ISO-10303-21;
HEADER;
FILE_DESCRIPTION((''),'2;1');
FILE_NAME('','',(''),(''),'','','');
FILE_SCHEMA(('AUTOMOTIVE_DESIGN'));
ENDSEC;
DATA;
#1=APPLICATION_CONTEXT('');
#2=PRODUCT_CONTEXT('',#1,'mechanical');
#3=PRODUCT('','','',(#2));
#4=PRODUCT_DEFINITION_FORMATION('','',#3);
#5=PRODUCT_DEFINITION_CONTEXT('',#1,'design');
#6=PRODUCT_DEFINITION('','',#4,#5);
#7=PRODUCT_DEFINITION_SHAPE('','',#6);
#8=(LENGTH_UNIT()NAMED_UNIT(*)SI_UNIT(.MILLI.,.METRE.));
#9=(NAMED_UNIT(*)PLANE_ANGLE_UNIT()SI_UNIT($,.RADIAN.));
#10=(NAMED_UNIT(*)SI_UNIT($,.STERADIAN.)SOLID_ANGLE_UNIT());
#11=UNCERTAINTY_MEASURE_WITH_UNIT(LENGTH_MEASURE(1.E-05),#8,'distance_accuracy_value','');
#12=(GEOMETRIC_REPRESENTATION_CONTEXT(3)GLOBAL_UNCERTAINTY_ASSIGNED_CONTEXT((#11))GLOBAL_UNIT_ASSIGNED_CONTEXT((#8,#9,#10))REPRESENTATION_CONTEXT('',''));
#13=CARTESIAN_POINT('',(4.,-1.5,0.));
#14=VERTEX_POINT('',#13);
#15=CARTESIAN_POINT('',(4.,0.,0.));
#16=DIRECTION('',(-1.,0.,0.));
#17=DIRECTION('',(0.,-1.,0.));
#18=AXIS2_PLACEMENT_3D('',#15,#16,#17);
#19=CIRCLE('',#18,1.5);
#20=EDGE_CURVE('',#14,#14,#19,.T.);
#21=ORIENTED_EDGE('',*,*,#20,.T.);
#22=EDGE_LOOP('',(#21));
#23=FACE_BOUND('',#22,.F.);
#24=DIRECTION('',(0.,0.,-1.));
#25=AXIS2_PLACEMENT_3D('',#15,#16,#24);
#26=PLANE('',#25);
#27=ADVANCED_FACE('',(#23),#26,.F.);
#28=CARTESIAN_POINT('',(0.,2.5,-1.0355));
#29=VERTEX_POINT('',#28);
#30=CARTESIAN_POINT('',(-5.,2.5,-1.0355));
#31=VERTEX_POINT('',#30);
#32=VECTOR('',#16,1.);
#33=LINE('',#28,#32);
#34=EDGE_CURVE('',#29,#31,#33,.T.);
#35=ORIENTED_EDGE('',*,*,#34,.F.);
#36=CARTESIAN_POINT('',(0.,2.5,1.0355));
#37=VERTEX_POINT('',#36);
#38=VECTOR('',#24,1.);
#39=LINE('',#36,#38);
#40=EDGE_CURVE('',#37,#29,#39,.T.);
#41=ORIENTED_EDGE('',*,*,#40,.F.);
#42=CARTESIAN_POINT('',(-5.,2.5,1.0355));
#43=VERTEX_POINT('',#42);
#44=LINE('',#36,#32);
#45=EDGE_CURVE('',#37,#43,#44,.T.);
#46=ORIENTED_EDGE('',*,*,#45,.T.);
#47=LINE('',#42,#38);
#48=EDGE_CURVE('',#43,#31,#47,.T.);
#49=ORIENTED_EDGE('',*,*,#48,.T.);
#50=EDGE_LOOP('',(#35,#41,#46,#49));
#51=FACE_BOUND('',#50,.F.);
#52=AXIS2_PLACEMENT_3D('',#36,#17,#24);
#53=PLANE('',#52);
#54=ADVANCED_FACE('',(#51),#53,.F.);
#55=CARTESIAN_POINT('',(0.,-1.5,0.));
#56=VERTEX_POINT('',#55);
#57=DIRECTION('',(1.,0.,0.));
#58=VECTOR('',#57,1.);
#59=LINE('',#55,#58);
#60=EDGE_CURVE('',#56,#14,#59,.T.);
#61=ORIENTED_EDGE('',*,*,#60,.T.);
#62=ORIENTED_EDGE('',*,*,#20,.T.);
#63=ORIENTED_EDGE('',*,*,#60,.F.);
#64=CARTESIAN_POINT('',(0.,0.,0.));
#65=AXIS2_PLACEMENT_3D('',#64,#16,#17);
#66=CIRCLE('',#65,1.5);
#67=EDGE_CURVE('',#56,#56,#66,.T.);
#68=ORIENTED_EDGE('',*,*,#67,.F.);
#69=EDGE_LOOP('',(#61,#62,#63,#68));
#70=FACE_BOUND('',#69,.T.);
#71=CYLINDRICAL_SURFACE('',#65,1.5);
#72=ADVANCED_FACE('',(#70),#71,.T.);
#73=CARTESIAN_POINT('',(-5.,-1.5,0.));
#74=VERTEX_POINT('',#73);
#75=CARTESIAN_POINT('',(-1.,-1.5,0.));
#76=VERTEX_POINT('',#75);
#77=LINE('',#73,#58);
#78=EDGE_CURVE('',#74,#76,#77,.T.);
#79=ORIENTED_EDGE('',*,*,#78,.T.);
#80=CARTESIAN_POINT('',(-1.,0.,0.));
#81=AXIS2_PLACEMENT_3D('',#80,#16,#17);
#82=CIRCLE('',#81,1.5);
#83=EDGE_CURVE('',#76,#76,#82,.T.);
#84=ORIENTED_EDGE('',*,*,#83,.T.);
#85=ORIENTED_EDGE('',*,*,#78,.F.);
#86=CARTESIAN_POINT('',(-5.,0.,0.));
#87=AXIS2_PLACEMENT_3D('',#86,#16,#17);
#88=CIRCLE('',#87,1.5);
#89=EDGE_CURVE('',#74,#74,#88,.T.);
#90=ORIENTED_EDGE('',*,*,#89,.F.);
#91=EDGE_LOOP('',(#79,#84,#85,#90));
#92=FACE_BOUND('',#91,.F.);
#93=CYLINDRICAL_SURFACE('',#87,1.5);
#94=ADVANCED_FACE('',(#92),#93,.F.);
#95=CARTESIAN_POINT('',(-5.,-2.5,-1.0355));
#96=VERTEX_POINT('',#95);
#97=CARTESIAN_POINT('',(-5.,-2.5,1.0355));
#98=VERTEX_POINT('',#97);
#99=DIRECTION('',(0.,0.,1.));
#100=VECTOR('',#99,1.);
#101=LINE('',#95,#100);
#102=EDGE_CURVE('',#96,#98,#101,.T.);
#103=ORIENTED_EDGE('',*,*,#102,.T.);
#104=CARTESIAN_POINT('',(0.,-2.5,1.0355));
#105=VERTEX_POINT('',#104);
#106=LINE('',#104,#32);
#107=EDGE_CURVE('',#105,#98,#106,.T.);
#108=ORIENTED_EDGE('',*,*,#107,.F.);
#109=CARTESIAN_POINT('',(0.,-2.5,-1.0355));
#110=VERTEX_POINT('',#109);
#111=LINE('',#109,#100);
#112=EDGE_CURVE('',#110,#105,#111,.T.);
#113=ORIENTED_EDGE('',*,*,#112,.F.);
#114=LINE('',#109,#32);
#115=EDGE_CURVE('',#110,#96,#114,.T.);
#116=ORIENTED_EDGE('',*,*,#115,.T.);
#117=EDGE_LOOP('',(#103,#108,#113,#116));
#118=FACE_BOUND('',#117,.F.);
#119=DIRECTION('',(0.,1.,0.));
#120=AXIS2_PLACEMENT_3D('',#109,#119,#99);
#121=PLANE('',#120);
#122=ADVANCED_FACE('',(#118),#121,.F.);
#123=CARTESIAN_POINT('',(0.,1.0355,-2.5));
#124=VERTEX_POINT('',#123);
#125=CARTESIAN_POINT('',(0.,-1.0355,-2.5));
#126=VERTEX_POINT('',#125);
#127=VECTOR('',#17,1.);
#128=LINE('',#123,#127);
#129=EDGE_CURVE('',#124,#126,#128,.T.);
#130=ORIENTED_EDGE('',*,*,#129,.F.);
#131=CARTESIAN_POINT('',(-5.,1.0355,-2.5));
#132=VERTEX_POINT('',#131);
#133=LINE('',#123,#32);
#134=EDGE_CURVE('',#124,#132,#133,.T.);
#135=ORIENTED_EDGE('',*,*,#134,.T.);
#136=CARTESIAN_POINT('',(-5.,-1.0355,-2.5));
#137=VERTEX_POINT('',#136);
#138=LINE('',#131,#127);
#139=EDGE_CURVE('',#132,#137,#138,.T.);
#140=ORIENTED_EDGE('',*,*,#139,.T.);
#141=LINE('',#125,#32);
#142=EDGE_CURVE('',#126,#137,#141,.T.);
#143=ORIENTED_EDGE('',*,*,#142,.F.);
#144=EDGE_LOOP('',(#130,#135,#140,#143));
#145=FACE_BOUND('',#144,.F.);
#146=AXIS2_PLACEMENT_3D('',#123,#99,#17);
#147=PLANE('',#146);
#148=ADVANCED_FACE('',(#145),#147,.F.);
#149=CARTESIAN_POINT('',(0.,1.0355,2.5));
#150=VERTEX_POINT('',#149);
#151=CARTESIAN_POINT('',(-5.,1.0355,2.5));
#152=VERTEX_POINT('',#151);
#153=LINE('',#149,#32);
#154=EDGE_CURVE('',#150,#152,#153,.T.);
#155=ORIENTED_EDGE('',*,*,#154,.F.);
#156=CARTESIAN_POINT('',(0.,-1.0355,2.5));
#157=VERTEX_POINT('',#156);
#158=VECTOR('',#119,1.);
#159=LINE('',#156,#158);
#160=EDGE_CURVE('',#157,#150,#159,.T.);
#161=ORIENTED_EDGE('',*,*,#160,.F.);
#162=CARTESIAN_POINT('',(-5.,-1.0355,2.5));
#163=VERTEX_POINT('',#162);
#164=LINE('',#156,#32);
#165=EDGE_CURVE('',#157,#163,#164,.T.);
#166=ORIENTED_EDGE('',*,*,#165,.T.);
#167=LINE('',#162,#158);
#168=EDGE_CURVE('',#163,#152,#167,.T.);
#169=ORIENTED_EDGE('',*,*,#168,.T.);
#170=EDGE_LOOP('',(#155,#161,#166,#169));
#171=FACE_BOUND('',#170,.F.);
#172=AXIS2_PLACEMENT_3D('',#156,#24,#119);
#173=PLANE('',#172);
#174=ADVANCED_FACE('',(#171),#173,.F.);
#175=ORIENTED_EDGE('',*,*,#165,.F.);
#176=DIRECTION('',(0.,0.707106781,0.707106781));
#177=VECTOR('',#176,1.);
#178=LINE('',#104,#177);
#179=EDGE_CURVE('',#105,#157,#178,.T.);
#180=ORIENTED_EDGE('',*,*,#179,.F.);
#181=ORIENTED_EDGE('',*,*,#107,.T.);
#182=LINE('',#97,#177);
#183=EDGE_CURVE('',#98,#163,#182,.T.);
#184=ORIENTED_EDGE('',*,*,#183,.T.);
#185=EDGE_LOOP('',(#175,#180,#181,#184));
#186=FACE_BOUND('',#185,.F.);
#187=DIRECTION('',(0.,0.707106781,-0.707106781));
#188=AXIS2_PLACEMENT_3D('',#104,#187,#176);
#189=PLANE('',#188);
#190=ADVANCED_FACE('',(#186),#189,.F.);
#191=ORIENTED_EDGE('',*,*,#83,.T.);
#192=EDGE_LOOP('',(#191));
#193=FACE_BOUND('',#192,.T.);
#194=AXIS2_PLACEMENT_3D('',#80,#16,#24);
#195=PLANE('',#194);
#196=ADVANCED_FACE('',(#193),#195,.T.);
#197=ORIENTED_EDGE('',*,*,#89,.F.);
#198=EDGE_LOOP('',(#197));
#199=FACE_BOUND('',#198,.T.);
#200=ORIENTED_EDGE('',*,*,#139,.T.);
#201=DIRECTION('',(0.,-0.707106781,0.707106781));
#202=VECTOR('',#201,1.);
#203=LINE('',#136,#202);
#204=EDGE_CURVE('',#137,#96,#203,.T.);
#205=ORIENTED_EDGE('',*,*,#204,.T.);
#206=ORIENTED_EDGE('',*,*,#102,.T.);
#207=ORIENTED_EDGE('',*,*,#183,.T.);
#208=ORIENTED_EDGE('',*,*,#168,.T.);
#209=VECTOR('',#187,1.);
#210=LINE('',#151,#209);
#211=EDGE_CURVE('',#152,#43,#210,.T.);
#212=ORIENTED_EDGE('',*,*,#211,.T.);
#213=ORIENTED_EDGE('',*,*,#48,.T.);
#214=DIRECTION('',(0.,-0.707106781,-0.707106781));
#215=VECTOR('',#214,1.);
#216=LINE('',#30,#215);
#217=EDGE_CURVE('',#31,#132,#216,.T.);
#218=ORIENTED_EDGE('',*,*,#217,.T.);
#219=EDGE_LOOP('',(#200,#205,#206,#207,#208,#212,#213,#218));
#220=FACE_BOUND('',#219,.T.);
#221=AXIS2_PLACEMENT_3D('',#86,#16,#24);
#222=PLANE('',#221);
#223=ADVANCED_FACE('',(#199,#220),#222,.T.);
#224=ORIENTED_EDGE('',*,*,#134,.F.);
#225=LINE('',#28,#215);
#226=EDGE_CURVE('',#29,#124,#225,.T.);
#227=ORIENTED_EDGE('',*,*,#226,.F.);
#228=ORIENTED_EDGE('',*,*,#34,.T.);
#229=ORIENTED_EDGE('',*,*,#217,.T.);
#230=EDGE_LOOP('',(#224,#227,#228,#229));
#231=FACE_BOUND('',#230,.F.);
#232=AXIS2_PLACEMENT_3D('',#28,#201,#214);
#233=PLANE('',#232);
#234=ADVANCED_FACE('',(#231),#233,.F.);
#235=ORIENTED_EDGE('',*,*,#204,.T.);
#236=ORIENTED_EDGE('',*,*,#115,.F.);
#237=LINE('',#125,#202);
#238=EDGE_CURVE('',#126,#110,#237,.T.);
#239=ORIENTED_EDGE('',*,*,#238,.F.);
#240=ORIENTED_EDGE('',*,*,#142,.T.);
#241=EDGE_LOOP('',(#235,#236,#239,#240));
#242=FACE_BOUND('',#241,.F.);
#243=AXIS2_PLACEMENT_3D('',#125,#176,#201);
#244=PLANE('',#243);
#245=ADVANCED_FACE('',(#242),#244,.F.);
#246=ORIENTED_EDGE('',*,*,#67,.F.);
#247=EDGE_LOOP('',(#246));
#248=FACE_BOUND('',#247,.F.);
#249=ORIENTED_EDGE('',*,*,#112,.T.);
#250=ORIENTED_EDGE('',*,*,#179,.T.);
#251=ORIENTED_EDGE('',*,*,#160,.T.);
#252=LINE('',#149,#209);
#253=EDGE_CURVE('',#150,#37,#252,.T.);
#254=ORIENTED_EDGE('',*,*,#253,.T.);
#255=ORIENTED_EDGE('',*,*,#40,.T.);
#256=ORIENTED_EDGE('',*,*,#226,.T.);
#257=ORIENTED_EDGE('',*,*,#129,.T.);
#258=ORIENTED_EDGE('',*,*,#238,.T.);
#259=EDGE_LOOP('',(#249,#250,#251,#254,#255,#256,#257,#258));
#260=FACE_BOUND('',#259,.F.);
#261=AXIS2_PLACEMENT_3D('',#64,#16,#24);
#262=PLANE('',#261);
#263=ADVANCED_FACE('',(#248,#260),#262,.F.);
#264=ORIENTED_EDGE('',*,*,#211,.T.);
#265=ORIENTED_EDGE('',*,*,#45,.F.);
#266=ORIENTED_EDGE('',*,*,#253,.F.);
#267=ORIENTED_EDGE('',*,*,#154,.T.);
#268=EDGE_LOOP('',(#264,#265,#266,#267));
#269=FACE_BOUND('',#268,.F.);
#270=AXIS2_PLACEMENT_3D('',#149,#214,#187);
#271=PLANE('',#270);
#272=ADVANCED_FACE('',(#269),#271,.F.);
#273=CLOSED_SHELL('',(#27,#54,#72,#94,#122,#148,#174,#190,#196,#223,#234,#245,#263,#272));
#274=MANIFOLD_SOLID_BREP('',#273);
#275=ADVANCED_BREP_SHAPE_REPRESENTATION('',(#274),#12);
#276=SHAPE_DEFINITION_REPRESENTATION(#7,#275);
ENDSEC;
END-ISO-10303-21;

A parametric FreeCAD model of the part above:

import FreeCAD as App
import Part
import Sketcher

V = App.Vector

doc = App.newDocument("Part")
params = doc.addObject("Spreadsheet::Sheet", "Params")
for row, (alias, value) in enumerate([
    ("sketch1_diameter", "3 mm"),
    ("pad1_length", "4 mm"),
    ("pad2_length", "5 mm"),
    ("sketch3_diameter", "3 mm"),
    ("pocket1_length", "4 mm"),
], start=1):
    params.set(f"A{row}", alias)
    params.set(f"B{row}", "=" + value)
    params.setAlias(f"B{row}", alias)

body = doc.addObject("PartDesign::Body", "Body")

sketch1 = body.newObject("Sketcher::SketchObject", "Sketch")
sketch1.AttachmentSupport = (doc.getObject("YZ_Plane"), [""])
sketch1.MapMode = "FlatFace"
sketch1.addGeometry(Part.Circle(V(0, 0, 0), V(0, 0, 1), 1.5), False)
sketch1.addConstraint([
    Sketcher.Constraint("Coincident", 0, 3, -1, 1),
    Sketcher.Constraint("Diameter", 0, 3.0),
])
sketch1.setExpression("Constraints[1]", "Params.sketch1_diameter")
pad1 = body.newObject("PartDesign::Pad", "Pad")
pad1.Profile = sketch1
pad1.setExpression("Length", "Params.pad1_length")

sketch2 = body.newObject("Sketcher::SketchObject", "Sketch001")
sketch2.AttachmentSupport = (doc.getObject("YZ_Plane"), [""])
sketch2.MapMode = "FlatFace"
sketch2.addGeometry([
    Part.LineSegment(V(2.5, -1.0355, 0), V(1.0355, -2.5, 0)),
    Part.LineSegment(V(1.0355, -2.5, 0), V(-1.0355, -2.5, 0)),
    Part.LineSegment(V(-1.0355, -2.5, 0), V(-2.5, -1.0355, 0)),
    Part.LineSegment(V(-2.5, -1.0355, 0), V(-2.5, 1.0355, 0)),
    Part.LineSegment(V(-2.5, 1.0355, 0), V(-1.0355, 2.5, 0)),
    Part.LineSegment(V(-1.0355, 2.5, 0), V(1.0355, 2.5, 0)),
    Part.LineSegment(V(1.0355, 2.5, 0), V(2.5, 1.0355, 0)),
    Part.LineSegment(V(2.5, 1.0355, 0), V(2.5, -1.0355, 0)),
], False)
sketch2.addConstraint([
    Sketcher.Constraint("Coincident", 0, 2, 1, 1),
    Sketcher.Constraint("Coincident", 1, 2, 2, 1),
    Sketcher.Constraint("Coincident", 2, 2, 3, 1),
    Sketcher.Constraint("Coincident", 3, 2, 4, 1),
    Sketcher.Constraint("Coincident", 4, 2, 5, 1),
    Sketcher.Constraint("Coincident", 5, 2, 6, 1),
    Sketcher.Constraint("Coincident", 6, 2, 7, 1),
    Sketcher.Constraint("Coincident", 7, 2, 0, 1),
    Sketcher.Constraint("Horizontal", 1),
    Sketcher.Constraint("Vertical", 3),
    Sketcher.Constraint("Horizontal", 5),
    Sketcher.Constraint("Vertical", 7),
    Sketcher.Constraint("Symmetric", 0, 2, 4, 2, -1, 1),
    Sketcher.Constraint("Symmetric", 2, 2, 6, 2, -1, 1),
    Sketcher.Constraint("Perpendicular", 0, 2),
    Sketcher.Constraint("Perpendicular", 2, 4),
    Sketcher.Constraint("Perpendicular", 4, 6),
    Sketcher.Constraint("Horizontal", 3, 2, 6, 2),
    Sketcher.Constraint("Vertical", 1, 2, 4, 2),
    Sketcher.Constraint("Equal", 5, 3),
    Sketcher.Constraint("DistanceY", 1, 2, 4, 2, 5.0),
    Sketcher.Constraint("DistanceX", 1, 2, 1, 1, 2.071),
])
pad2 = body.newObject("PartDesign::Pad", "Pad001")
pad2.Profile = sketch2
pad2.setExpression("Length", "Params.pad2_length")
pad2.Reversed = True

sketch3 = body.newObject("Sketcher::SketchObject", "Sketch002")
sketch3.AttachmentSupport = (doc.getObject("YZ_Plane"), [""])
sketch3.MapMode = "FlatFace"
sketch3.AttachmentOffset = App.Placement(V(0, 0, -5), App.Rotation())
sketch3.addGeometry(Part.Circle(V(0, 0, 0), V(0, 0, 1), 1.5), False)
sketch3.addConstraint([
    Sketcher.Constraint("Coincident", 0, 3, -1, 1),
    Sketcher.Constraint("Diameter", 0, 3.0),
])
sketch3.setExpression("Constraints[1]", "Params.sketch3_diameter")
pocket1 = body.newObject("PartDesign::Pocket", "Pocket")
pocket1.Profile = sketch3
pocket1.setExpression("Length", "Params.pocket1_length")
pocket1.Reversed = True

doc.recompute()
